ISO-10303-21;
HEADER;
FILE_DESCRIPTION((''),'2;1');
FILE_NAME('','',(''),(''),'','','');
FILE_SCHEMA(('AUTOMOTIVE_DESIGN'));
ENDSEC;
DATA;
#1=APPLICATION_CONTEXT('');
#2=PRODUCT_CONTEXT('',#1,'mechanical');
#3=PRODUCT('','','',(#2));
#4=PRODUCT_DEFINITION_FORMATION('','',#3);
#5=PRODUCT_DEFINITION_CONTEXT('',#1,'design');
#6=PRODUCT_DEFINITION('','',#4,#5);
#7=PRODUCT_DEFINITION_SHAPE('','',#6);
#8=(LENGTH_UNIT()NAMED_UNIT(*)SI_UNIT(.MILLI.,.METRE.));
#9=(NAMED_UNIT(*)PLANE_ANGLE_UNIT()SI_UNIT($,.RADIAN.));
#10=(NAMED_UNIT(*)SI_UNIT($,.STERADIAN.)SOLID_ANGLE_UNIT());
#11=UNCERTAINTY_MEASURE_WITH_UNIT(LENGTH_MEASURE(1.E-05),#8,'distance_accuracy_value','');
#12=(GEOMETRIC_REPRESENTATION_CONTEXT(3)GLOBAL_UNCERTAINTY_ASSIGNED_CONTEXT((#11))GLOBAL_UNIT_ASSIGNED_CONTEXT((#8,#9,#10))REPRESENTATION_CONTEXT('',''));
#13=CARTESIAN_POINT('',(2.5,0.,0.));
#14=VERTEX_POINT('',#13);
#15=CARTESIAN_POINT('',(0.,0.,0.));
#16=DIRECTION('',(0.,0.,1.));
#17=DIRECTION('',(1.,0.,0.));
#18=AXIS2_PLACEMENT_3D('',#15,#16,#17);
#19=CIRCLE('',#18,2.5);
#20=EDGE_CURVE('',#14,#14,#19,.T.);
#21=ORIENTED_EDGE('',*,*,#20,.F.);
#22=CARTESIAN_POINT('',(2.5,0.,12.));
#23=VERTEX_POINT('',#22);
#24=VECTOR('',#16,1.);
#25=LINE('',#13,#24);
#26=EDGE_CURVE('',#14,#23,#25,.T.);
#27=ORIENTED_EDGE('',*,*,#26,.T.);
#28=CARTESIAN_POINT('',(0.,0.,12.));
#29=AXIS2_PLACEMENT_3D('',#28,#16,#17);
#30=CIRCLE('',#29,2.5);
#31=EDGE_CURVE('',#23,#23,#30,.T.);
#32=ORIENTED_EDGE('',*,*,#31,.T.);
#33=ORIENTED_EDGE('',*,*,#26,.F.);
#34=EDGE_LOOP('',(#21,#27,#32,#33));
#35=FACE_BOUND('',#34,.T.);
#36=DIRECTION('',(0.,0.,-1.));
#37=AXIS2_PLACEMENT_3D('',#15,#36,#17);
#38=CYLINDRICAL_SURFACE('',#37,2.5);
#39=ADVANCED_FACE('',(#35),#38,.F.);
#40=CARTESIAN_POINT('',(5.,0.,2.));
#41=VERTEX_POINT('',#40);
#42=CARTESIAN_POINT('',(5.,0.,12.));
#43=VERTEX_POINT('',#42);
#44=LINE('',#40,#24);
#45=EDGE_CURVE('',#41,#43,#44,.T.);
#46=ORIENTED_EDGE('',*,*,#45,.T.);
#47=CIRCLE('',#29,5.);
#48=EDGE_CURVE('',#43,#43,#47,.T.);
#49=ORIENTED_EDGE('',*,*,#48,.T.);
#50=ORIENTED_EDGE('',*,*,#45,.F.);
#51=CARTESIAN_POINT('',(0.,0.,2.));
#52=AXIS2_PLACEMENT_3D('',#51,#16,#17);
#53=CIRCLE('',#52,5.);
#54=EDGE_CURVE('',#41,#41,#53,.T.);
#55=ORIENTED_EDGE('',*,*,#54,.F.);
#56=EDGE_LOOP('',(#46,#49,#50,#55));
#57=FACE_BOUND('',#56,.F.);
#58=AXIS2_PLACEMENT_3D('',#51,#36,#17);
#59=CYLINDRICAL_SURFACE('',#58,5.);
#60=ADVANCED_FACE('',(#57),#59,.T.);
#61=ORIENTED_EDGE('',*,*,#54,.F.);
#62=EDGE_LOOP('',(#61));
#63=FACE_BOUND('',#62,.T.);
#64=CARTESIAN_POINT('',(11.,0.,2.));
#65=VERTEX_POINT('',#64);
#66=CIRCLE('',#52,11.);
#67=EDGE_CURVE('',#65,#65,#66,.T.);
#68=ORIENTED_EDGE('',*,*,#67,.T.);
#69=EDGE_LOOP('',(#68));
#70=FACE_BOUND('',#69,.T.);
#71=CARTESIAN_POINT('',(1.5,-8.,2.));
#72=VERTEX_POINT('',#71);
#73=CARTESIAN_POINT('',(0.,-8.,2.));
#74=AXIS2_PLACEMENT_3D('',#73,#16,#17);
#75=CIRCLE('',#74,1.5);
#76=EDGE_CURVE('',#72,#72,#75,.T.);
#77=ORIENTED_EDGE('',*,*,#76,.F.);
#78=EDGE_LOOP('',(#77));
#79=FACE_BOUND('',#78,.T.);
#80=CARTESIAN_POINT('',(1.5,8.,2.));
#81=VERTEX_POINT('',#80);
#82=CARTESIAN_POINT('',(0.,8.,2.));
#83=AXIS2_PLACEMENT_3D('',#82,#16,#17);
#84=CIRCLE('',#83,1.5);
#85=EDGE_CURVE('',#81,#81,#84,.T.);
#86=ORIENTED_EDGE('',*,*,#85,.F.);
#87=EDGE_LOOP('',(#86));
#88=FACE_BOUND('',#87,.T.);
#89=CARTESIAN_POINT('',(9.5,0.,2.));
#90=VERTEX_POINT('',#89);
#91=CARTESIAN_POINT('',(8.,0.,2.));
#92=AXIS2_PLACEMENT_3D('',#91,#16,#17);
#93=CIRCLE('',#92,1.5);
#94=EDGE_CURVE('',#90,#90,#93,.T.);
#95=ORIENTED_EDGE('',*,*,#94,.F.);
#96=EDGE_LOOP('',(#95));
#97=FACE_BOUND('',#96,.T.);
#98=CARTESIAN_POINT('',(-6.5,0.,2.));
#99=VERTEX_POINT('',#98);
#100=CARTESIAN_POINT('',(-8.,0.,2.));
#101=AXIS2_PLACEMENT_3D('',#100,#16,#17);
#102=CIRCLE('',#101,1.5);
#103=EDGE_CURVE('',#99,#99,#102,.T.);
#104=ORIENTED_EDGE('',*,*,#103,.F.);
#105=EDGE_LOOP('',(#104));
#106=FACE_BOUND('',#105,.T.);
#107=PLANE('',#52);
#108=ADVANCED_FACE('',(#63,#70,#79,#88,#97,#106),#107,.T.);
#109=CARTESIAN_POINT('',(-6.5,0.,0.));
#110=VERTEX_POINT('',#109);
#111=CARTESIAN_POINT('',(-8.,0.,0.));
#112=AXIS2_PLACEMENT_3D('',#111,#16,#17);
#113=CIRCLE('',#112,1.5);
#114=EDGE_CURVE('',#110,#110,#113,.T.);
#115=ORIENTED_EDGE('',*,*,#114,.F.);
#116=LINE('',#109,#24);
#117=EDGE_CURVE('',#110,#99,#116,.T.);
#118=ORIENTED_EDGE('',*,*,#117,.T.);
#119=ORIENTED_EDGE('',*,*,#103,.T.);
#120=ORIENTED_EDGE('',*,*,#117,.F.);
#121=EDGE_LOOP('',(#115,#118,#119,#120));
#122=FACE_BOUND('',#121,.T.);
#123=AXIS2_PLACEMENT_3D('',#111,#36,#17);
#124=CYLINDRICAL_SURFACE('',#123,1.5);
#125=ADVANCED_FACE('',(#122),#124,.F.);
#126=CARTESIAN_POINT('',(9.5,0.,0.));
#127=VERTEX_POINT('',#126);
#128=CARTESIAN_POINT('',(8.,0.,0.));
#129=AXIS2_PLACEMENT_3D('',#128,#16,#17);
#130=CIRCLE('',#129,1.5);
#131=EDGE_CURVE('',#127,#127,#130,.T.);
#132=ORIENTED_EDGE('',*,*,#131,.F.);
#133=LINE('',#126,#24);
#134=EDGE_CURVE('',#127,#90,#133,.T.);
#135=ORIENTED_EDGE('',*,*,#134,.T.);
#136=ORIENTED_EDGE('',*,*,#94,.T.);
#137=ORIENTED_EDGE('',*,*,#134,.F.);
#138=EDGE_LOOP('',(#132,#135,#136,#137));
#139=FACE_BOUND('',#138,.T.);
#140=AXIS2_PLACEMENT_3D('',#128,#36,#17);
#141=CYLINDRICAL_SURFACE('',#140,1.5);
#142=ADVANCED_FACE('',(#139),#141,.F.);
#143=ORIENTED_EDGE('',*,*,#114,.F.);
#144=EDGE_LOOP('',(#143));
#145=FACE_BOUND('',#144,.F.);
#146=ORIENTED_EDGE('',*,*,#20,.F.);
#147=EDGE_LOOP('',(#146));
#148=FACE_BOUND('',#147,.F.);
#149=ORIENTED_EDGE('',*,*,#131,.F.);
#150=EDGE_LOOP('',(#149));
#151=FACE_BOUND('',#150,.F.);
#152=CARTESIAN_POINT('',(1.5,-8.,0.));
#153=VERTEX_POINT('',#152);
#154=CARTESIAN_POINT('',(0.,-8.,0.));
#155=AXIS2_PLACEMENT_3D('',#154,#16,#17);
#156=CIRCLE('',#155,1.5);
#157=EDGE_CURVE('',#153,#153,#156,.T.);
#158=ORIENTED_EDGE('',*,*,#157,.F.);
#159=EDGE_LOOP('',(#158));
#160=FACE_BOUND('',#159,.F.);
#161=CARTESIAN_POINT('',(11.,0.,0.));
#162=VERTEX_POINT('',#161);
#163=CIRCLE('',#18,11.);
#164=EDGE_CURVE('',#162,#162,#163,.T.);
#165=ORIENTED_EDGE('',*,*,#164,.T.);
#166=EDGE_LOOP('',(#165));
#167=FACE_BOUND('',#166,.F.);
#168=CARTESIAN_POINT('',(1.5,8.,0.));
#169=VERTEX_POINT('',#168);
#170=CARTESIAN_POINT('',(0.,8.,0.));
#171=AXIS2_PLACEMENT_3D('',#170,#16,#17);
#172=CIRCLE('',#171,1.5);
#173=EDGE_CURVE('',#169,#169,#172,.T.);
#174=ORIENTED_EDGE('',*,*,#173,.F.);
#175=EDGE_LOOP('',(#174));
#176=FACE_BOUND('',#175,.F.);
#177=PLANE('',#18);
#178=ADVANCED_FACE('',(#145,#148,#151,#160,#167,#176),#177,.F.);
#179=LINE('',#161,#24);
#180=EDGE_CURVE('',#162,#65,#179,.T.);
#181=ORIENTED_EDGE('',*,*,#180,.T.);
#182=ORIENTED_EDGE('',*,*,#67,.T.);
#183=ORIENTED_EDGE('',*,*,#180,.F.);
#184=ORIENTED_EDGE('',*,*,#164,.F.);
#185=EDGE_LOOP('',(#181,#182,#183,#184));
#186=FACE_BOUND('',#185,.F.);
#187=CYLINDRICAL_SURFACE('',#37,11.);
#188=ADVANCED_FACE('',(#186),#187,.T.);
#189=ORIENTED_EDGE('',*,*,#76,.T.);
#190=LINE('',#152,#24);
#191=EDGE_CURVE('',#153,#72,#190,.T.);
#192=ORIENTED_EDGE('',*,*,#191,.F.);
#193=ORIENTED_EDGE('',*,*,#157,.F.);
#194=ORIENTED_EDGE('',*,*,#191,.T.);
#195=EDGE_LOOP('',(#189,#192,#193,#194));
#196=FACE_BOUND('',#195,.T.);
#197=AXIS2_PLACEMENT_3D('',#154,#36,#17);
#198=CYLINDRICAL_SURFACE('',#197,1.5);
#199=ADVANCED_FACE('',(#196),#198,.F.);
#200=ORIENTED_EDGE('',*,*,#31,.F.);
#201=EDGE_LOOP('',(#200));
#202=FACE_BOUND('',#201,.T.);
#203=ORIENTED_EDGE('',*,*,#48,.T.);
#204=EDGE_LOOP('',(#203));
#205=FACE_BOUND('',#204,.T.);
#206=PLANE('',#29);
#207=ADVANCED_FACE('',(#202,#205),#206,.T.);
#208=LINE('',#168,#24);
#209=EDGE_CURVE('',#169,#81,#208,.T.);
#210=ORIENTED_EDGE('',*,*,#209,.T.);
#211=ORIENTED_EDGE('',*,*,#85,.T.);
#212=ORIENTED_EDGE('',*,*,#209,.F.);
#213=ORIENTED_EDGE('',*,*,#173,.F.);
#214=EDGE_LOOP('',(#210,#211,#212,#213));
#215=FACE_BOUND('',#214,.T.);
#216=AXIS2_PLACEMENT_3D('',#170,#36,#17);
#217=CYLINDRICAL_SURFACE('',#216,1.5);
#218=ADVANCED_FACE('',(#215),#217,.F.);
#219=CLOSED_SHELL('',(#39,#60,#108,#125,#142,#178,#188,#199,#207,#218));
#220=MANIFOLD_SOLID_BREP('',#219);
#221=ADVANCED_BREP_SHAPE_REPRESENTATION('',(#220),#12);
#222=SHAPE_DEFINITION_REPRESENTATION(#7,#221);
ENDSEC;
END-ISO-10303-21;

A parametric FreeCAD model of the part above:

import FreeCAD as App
import Part
import Sketcher

V = App.Vector
Q = App.Units.Quantity

doc = App.newDocument("Part")
body = doc.addObject("PartDesign::Body", "Body")

# Sketch on XY plane
sketch1 = doc.addObject("Sketcher::SketchObject", "Sketch")
body.addObject(sketch1)
sketch1.AttachmentSupport = (doc.XY_Plane, [""])
sketch1.MapMode = "FlatFace"
sketch1.addGeometry(Part.Circle(V(0, 0, 0), V(0, 0, 1), 11), False)
sketch1.addGeometry(Part.Circle(V(0, -8, 0), V(0, 0, 1), 1.5), False)
sketch1.addGeometry(Part.Circle(V(-8, 0, 0), V(0, 0, 1), 1.5), False)
sketch1.addGeometry(Part.Circle(V(0, 0, 0), V(0, 0, 1), 2.5), False)
sketch1.addGeometry(Part.Circle(V(8, 0, 0), V(0, 0, 1), 1.5), False)
sketch1.addGeometry(Part.Circle(V(0, 8, 0), V(0, 0, 1), 1.5), False)
sketch1.addConstraint(Sketcher.Constraint("Coincident", 0, 3, -1, 1))
sketch1.addConstraint(Sketcher.Constraint("Coincident", 3, 3, -1, 1))
sketch1.addConstraint(Sketcher.Constraint("Equal", 1, 2))
sketch1.addConstraint(Sketcher.Constraint("Equal", 2, 4))
sketch1.addConstraint(Sketcher.Constraint("Equal", 4, 5))
sketch1.addConstraint(Sketcher.Constraint("Symmetric", 2, 3, 4, 3, -1, 1))
sketch1.addConstraint(Sketcher.Constraint("Symmetric", 1, 3, 5, 3, -1, 1))
sketch1.addConstraint(Sketcher.Constraint("PointOnObject", 1, 3, -2))
sketch1.addConstraint(Sketcher.Constraint("PointOnObject", 2, 3, -1))
sketch1.addConstraint(Sketcher.Constraint("Diameter", 0, Q("22 mm")))
sketch1.addConstraint(Sketcher.Constraint("Diameter", 1, Q("3 mm")))
sketch1.addConstraint(Sketcher.Constraint("Diameter", 3, Q("5 mm")))
sketch1.addConstraint(Sketcher.Constraint("DistanceY", 1, 3, -1, 1, Q("8 mm")))
sketch1.addConstraint(Sketcher.Constraint("DistanceX", 2, 3, -1, 1, Q("8 mm")))
pad1 = doc.addObject("PartDesign::Pad", "Pad")
body.addObject(pad1)
pad1.Profile = sketch1
pad1.Length = 2

# Sketch on XY plane
sketch2 = doc.addObject("Sketcher::SketchObject", "Sketch001")
body.addObject(sketch2)
sketch2.AttachmentSupport = (doc.XY_Plane, [""])
sketch2.MapMode = "FlatFace"
sketch2.AttachmentOffset = App.Placement(V(0, 0, 2), App.Rotation())
sketch2.addGeometry(Part.Circle(V(0, 0, 0), V(0, 0, 1), 5), False)
sketch2.addGeometry(Part.Circle(V(0, 0, 0), V(0, 0, 1), 2.5), False)
sketch2.addConstraint(Sketcher.Constraint("Coincident", 0, 3, -1, 1))
sketch2.addConstraint(Sketcher.Constraint("Coincident", 1, 3, -1, 1))
sketch2.addConstraint(Sketcher.Constraint("Diameter", 0, Q("10 mm")))
sketch2.addConstraint(Sketcher.Constraint("Diameter", 1, Q("5 mm")))
pad2 = doc.addObject("PartDesign::Pad", "Pad001")
body.addObject(pad2)
pad2.Profile = sketch2
pad2.Length = 10

doc.recompute()
